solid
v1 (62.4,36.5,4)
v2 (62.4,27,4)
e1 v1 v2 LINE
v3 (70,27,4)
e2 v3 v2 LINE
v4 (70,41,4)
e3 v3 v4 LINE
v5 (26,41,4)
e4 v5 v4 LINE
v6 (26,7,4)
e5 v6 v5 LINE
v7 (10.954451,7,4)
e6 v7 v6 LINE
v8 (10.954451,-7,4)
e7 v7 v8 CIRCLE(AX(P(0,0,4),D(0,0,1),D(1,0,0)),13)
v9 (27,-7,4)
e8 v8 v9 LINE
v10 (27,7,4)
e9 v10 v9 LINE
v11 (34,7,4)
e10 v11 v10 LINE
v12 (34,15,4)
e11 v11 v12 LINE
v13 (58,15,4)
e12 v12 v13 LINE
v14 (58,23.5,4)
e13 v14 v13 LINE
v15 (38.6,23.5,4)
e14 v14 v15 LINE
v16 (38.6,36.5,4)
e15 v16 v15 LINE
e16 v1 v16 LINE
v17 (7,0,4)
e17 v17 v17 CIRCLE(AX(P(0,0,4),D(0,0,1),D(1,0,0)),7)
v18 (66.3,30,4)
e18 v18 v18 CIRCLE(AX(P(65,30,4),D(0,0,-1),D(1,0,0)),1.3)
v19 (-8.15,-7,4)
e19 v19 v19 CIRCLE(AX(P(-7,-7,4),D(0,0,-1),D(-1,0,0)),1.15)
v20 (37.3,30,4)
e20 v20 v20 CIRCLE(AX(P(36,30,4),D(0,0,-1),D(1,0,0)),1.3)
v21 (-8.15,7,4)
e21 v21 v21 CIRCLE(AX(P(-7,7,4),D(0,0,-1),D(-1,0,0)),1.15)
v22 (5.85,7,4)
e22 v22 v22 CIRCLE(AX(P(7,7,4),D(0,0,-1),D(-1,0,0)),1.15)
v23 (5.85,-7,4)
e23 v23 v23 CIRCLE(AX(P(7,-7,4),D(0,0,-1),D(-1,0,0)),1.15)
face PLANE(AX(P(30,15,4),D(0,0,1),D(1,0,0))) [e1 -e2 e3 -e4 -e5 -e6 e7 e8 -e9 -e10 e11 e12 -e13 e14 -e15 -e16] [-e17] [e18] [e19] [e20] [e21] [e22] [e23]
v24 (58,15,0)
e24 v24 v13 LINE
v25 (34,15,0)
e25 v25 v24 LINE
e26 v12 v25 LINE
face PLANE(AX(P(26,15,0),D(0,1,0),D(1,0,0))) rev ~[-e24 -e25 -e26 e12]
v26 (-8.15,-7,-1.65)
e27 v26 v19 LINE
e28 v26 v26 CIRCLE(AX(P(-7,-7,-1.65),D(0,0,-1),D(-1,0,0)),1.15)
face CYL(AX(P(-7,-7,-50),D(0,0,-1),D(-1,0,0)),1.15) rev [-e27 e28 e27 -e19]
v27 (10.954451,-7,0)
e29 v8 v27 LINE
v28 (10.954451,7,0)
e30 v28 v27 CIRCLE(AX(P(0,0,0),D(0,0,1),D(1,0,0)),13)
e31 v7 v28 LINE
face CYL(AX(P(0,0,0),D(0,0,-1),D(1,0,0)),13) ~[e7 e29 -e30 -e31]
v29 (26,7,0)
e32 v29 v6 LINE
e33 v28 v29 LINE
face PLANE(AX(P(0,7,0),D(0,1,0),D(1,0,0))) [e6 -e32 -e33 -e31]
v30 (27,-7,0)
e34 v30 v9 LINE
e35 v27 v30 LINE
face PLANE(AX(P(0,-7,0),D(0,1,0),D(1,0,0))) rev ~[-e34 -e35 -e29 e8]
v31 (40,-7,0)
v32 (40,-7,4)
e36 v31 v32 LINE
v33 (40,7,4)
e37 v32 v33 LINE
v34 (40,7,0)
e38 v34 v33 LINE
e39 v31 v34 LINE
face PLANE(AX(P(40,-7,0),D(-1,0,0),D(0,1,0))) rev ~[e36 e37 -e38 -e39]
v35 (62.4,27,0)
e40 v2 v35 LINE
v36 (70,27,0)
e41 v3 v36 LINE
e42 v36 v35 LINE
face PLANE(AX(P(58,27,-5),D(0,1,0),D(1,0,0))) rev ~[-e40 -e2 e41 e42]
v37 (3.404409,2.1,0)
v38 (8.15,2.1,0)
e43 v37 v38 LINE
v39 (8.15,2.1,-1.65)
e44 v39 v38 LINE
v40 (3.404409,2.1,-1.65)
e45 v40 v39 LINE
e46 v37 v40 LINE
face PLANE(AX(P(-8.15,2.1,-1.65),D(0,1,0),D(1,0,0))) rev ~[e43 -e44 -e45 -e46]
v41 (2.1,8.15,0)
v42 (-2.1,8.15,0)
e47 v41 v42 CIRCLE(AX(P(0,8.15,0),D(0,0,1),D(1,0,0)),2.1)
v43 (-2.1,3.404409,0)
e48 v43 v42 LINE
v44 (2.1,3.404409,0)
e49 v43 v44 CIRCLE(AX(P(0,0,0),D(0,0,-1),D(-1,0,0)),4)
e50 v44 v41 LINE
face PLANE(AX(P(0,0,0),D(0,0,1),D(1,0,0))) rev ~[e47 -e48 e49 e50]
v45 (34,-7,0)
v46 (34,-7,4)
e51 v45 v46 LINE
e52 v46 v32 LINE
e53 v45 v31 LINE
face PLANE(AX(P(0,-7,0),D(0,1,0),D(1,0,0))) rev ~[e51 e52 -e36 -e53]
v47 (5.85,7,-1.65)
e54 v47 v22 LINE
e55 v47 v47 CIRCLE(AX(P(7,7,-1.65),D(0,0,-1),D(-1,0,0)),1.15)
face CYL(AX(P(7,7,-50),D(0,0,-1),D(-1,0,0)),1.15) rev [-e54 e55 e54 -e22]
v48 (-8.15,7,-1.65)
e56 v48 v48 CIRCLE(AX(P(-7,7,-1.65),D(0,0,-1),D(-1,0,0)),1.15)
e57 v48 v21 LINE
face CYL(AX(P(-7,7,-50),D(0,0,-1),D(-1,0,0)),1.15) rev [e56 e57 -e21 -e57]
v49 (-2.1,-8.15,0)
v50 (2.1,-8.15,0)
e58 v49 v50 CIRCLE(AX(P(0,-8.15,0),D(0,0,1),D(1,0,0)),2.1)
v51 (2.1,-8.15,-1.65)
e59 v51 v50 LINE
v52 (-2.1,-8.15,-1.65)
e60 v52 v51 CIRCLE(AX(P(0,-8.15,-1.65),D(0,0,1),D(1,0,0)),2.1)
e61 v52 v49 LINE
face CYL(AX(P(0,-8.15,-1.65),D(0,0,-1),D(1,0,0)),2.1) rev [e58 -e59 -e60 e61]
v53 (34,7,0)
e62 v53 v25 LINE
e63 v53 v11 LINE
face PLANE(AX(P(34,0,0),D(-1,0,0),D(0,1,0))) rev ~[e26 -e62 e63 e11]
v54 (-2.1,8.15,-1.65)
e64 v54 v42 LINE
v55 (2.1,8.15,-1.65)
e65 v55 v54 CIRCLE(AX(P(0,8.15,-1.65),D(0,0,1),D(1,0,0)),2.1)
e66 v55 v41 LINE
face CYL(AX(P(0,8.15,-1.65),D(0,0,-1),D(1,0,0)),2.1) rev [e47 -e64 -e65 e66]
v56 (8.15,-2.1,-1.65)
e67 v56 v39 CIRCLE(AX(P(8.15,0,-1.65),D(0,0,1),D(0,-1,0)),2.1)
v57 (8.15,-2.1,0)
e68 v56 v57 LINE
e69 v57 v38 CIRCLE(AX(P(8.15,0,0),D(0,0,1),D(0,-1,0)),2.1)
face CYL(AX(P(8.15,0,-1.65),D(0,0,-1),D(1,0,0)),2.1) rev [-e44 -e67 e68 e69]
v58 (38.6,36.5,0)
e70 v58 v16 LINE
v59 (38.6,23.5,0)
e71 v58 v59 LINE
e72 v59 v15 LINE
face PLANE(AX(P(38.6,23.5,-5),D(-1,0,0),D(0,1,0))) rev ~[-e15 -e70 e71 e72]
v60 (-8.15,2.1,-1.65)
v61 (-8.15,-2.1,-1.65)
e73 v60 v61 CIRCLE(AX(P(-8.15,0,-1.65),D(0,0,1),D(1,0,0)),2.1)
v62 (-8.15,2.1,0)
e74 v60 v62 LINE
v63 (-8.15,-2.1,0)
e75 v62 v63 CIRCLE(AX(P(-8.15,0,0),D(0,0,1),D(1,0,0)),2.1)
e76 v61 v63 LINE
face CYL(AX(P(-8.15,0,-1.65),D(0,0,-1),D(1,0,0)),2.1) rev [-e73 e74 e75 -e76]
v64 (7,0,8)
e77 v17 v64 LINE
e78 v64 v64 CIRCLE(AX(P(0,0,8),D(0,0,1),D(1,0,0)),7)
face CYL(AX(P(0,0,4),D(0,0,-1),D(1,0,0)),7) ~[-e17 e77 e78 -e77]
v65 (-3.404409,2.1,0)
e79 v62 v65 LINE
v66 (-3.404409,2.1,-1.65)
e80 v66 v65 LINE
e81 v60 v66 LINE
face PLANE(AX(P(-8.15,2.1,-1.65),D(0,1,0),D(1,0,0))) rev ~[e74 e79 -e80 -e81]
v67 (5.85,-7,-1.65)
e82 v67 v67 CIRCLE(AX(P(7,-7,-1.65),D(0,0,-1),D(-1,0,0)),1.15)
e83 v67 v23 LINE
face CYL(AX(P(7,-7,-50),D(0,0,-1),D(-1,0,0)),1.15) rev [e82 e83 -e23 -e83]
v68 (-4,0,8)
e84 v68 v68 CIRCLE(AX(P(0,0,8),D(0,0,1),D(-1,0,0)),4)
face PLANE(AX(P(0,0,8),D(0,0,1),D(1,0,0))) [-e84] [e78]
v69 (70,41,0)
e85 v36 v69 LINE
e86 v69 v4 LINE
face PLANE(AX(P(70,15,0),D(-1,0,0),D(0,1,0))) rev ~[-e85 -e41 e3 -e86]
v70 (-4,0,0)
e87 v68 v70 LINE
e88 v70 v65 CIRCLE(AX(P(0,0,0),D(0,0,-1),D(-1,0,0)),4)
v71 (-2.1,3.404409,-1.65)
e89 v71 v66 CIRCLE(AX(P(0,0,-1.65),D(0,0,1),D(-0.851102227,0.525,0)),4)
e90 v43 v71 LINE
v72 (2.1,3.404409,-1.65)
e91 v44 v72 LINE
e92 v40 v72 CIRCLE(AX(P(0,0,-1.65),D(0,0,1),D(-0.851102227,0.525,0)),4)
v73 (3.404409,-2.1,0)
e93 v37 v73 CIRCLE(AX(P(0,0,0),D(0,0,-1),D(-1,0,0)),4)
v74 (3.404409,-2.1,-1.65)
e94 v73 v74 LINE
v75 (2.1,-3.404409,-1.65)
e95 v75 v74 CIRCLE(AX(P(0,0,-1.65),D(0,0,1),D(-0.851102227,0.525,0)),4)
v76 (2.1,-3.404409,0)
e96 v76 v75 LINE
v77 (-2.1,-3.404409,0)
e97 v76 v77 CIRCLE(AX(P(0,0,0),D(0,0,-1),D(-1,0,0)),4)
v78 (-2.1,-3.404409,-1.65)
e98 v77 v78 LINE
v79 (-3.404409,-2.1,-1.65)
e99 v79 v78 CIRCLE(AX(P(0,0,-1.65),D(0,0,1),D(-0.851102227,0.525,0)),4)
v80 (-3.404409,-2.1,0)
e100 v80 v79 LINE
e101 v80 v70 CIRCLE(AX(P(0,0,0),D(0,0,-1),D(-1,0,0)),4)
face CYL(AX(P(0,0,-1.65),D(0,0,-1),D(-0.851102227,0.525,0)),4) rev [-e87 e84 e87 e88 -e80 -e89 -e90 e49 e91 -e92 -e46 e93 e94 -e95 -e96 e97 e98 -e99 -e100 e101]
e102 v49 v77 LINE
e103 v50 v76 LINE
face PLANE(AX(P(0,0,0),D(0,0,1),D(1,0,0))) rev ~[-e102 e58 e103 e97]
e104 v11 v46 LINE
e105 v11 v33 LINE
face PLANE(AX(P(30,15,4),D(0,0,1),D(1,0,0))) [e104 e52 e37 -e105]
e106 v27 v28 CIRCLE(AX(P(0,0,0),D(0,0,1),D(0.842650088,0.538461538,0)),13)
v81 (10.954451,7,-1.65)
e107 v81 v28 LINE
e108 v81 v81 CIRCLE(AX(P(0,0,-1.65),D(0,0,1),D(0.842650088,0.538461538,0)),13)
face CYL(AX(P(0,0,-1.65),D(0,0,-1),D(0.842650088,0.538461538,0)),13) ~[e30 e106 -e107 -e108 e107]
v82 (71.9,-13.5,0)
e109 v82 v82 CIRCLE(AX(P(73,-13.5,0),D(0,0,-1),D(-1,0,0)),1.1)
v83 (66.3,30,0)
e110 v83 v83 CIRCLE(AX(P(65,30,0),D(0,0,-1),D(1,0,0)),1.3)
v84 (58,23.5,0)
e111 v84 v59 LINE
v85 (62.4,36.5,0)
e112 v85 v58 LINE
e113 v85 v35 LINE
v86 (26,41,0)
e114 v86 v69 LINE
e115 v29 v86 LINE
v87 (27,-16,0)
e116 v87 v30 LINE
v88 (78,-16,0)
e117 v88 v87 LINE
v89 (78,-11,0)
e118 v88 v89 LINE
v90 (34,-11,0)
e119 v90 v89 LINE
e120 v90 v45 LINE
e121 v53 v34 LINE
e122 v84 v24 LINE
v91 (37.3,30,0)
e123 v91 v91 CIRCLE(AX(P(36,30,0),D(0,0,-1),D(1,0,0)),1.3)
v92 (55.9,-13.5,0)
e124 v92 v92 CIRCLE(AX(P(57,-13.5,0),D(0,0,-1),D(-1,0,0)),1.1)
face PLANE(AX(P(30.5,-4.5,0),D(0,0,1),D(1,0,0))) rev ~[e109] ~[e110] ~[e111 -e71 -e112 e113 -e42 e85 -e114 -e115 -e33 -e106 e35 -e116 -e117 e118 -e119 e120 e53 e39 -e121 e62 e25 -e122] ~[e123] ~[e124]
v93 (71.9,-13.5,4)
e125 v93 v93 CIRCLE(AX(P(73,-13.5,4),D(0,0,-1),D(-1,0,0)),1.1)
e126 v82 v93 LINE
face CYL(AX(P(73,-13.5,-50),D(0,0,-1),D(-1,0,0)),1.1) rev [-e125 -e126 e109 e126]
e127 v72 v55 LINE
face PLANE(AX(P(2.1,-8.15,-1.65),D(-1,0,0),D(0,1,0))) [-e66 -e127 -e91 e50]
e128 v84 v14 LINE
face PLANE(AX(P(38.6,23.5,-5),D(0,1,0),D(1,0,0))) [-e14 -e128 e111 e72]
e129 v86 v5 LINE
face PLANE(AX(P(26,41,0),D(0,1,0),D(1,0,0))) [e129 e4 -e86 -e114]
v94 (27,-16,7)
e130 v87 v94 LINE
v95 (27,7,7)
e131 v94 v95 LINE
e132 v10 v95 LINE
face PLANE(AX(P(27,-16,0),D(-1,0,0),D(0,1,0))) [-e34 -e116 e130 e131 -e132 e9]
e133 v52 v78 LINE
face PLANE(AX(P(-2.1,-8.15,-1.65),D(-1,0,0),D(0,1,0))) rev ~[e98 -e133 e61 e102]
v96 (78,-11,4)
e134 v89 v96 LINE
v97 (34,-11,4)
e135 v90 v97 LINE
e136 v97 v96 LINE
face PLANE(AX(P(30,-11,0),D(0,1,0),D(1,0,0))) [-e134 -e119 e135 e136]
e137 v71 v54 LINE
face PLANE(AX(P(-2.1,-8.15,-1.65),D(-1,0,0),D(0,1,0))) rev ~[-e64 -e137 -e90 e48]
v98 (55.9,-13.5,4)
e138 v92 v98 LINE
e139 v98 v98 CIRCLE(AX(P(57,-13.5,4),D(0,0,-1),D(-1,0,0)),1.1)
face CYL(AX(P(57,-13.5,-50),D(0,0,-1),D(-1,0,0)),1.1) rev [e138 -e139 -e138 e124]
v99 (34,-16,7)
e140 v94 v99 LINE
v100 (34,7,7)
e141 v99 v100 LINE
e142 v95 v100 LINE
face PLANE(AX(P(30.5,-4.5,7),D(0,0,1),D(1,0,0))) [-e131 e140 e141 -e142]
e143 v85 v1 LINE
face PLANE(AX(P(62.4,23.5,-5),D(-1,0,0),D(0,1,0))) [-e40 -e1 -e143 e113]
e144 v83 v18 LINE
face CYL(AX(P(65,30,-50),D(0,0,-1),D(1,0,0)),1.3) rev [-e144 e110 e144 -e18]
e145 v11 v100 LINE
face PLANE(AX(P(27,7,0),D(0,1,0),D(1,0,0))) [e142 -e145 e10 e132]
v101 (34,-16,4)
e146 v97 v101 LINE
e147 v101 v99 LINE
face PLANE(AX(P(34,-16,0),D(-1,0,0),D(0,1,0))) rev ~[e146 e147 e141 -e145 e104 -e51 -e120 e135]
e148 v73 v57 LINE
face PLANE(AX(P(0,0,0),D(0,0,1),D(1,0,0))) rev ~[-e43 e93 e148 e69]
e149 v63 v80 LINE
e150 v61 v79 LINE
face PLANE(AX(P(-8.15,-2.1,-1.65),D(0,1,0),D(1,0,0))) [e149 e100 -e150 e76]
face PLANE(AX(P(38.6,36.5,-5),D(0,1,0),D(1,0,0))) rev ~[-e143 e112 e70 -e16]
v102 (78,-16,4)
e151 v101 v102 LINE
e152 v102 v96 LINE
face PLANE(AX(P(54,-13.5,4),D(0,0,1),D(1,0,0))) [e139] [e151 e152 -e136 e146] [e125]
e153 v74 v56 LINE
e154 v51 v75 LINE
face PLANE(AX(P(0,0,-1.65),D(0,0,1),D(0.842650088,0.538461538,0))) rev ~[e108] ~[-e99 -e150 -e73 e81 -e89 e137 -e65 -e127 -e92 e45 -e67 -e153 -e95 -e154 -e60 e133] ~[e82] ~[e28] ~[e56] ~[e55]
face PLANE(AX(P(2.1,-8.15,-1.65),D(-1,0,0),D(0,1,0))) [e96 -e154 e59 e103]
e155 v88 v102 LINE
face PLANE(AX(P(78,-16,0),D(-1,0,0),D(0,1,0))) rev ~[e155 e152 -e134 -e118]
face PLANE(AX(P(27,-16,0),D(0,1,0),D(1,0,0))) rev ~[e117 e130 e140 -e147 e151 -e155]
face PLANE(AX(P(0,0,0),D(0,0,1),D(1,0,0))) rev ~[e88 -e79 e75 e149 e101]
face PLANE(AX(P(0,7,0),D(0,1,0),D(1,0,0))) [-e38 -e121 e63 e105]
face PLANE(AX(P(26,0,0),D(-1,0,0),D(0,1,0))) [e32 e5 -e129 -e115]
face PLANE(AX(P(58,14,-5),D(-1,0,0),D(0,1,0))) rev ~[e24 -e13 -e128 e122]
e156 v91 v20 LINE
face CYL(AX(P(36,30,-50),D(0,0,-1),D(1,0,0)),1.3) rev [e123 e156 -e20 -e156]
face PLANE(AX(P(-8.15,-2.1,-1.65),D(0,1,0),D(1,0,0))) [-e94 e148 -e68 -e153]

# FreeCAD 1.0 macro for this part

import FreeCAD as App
import Part
import Sketcher
from FreeCAD import Vector


def add_polygon(sketch, points):
    """Adds a closed chain of lines whose ends are joined by coincident constraints."""
    first, n = sketch.GeometryCount, len(points)
    for a, b in zip(points, points[1:] + points[:1]):
        sketch.addGeometry(Part.LineSegment(App.Vector(*a, 0), App.Vector(*b, 0)), False)
    for i in range(n):
        sketch.addConstraint(Sketcher.Constraint("Coincident", first + i, 2, first + (i + 1) % n, 1))

doc = App.newDocument("Part")
params = doc.addObject("Spreadsheet::Sheet", "Params")
for row, (alias, value) in enumerate([
    ("sketch1_diameter", "26 mm"),
    ("pad1_length", "4 mm"),
    ("sketch2_width", "40 mm"),
    ("sketch2_height", "14 mm"),
    ("pad2_length", "4 mm"),
    ("sketch3_width", "8 mm"),
    ("sketch3_height", "30 mm"),
    ("pad3_length", "4 mm"),
    ("sketch4_width", "44 mm"),
    ("sketch4_height", "26 mm"),
    ("pad4_length", "4 mm"),
    ("sketch5_height", "13 mm"),
    ("sketch5_width", "23.8 mm"),
    ("sketch6_width", "13 mm"),
    ("sketch7_diameter", "2.6 mm"),
    ("sketch8_width", "48 mm"),
    ("sketch8_height", "5 mm"),
    ("pad5_length", "4 mm"),
    ("sketch9_width", "7 mm"),
    ("sketch9_height", "23 mm"),
    ("pad6_length", "7 mm"),
    ("sketch10_diameter", "8 mm"),
    ("sketch11_diameter", "14 mm"),
    ("sketch11_diameter2", "8 mm"),
    ("pad7_length", "4 mm"),
    ("sketch12_diameter", "26 mm"),
    ("pad8_length", "1.65 mm"),
    ("sketch13_diameter", "7.1 mm"),
    ("pocket5_length", "1.65 mm"),
    ("sketch14_width", "16.3 mm"),
    ("sketch14_height", "4.2 mm"),
    ("pocket6_length", "1.65 mm"),
    ("sketch15_width", "4.2 mm"),
    ("sketch15_height", "16.3 mm"),
    ("pocket7_length", "1.65 mm"),
    ("sketch16_diameter", "4.2 mm"),
    ("pocket8_length", "1.65 mm"),
    ("sketch17_diameter", "2.3 mm"),
    ("sketch18_diameter", "8 mm"),
    ("pocket10_length", "1.65 mm"),
    ("sketch19_diameter", "2.2 mm"),
], start=1):
    params.set(f"A{row}", alias)
    params.set(f"B{row}", "=" + value)
    params.setAlias(f"B{row}", alias)

body = doc.addObject("PartDesign::Body", "Body")

sketch1 = doc.addObject("Sketcher::SketchObject", "Sketch")
body.addObject(sketch1)
sketch1.AttachmentSupport = (doc.XY_Plane, [""])
sketch1.MapMode = "FlatFace"
sketch1.addGeometry(Part.Circle(Vector(0, 0, 0), Vector(0, 0, 1), 13), False)
sketch1.addConstraint([
    Sketcher.Constraint("Coincident", 0, 3, -1, 1),
    Sketcher.Constraint("Diameter", 0, 26.0),
])
sketch1.setExpression("Constraints[1]", "Params.sketch1_diameter")
pad1 = doc.addObject("PartDesign::Pad", "Pad")
body.addObject(pad1)
pad1.Profile = sketch1
pad1.setExpression("Length", "Params.pad1_length")

sketch2 = doc.addObject("Sketcher::SketchObject", "Sketch001")
body.addObject(sketch2)
sketch2.AttachmentSupport = (doc.XY_Plane, [""])
sketch2.MapMode = "FlatFace"
add_polygon(sketch2, [(0, 7), (0, -7), (40, -7), (40, 7)])
sketch2.addConstraint([
    Sketcher.Constraint("Vertical", 0),
    Sketcher.Constraint("Horizontal", 1),
    Sketcher.Constraint("Vertical", 2),
    Sketcher.Constraint("Horizontal", 3),
    Sketcher.Constraint("Symmetric", 0, 2, 3, 2, -1, 1),
    Sketcher.Constraint("DistanceX", 1, 1, 1, 2, 40.0),
    Sketcher.Constraint("DistanceY", 0, 2, 0, 1, 14.0),
])
sketch2.setExpression("Constraints[9]", "Params.sketch2_width")
sketch2.setExpression("Constraints[10]", "Params.sketch2_height")
pad2 = doc.addObject("PartDesign::Pad", "Pad001")
body.addObject(pad2)
pad2.Profile = sketch2
pad2.setExpression("Length", "Params.pad2_length")

sketch3 = doc.addObject("Sketcher::SketchObject", "Sketch002")
body.addObject(sketch3)
sketch3.AttachmentSupport = (doc.XY_Plane, [""])
sketch3.MapMode = "FlatFace"
add_polygon(sketch3, [(26, 30), (26, 0), (34, 0), (34, 30)])
sketch3.addConstraint([
    Sketcher.Constraint("Vertical", 0),
    Sketcher.Constraint("Horizontal", 1),
    Sketcher.Constraint("Vertical", 2),
    Sketcher.Constraint("Horizontal", 3),
    Sketcher.Constraint("PointOnObject", 0, 2, -1),
    Sketcher.Constraint("DistanceX", 1, 1, 1, 2, 8.0),
    Sketcher.Constraint("DistanceY", 0, 2, 0, 1, 30.0),
    Sketcher.Constraint("DistanceX", -1, 1, 0, 2, 26.0),
])
sketch3.setExpression("Constraints[9]", "Params.sketch3_width")
sketch3.setExpression("Constraints[10]", "Params.sketch3_height")
pad3 = doc.addObject("PartDesign::Pad", "Pad002")
body.addObject(pad3)
pad3.Profile = sketch3
pad3.setExpression("Length", "Params.pad3_length")

sketch4 = doc.addObject("Sketcher::SketchObject", "Sketch003")
body.addObject(sketch4)
sketch4.AttachmentSupport = (doc.XY_Plane, [""])
sketch4.MapMode = "FlatFace"
add_polygon(sketch4, [(26, 41), (26, 15), (70, 15), (70, 41)])
sketch4.addConstraint([
    Sketcher.Constraint("Vertical", 0),
    Sketcher.Constraint("Horizontal", 1),
    Sketcher.Constraint("Vertical", 2),
    Sketcher.Constraint("Horizontal", 3),
    Sketcher.Constraint("DistanceX", 1, 1, 1, 2, 44.0),
    Sketcher.Constraint("DistanceY", 0, 2, 0, 1, 26.0),
    Sketcher.Constraint("DistanceX", -1, 1, 0, 2, 26.0),
    Sketcher.Constraint("DistanceY", -1, 1, 0, 2, 15.0),
])
sketch4.setExpression("Constraints[8]", "Params.sketch4_width")
sketch4.setExpression("Constraints[9]", "Params.sketch4_height")
pad4 = doc.addObject("PartDesign::Pad", "Pad003")
body.addObject(pad4)
pad4.Profile = sketch4
pad4.setExpression("Length", "Params.pad4_length")

sketch5 = doc.addObject("Sketcher::SketchObject", "Sketch004")
body.addObject(sketch5)
sketch5.AttachmentSupport = (doc.XY_Plane, [""])
sketch5.MapMode = "FlatFace"
sketch5.AttachmentOffset = App.Placement(Vector(0, 0, -5), App.Rotation())
add_polygon(sketch5, [(38.6, 36.5), (38.6, 23.5), (62.4, 23.5), (62.4, 36.5)])
sketch5.addConstraint([
    Sketcher.Constraint("Vertical", 0),
    Sketcher.Constraint("Horizontal", 1),
    Sketcher.Constraint("Vertical", 2),
    Sketcher.Constraint("Horizontal", 3),
    Sketcher.Constraint("DistanceY", 0, 2, 0, 1, 13.0),
    Sketcher.Constraint("DistanceX", 1, 1, 1, 2, 23.8),
    Sketcher.Constraint("DistanceX", -1, 1, 0, 2, 38.6),
    Sketcher.Constraint("DistanceY", -1, 1, 0, 2, 23.5),
])
sketch5.setExpression("Constraints[8]", "Params.sketch5_height")
sketch5.setExpression("Constraints[9]", "Params.sketch5_width")
pocket1 = doc.addObject("PartDesign::Pocket", "Pocket")
body.addObject(pocket1)
pocket1.Profile = sketch5
pocket1.Type = "ThroughAll"
pocket1.Reversed = True

sketch6 = doc.addObject("Sketcher::SketchObject", "Sketch005")
body.addObject(sketch6)
sketch6.AttachmentSupport = (doc.XY_Plane, [""])
sketch6.MapMode = "FlatFace"
sketch6.AttachmentOffset = App.Placement(Vector(0, 0, -5), App.Rotation())
add_polygon(sketch6, [(58, 27), (58, 14), (71, 14), (71, 27)])
sketch6.addConstraint([
    Sketcher.Constraint("Vertical", 0),
    Sketcher.Constraint("Horizontal", 1),
    Sketcher.Constraint("Vertical", 2),
    Sketcher.Constraint("Horizontal", 3),
    Sketcher.Constraint("Equal", 3, 0),
    Sketcher.Constraint("DistanceX", 1, 1, 1, 2, 13.0),
    Sketcher.Constraint("DistanceX", -1, 1, 0, 2, 58.0),
    Sketcher.Constraint("DistanceY", -1, 1, 0, 2, 14.0),
])
sketch6.setExpression("Constraints[9]", "Params.sketch6_width")
pocket2 = doc.addObject("PartDesign::Pocket", "Pocket001")
body.addObject(pocket2)
pocket2.Profile = sketch6
pocket2.Type = "ThroughAll"
pocket2.Reversed = True

sketch7 = doc.addObject("Sketcher::SketchObject", "Sketch006")
body.addObject(sketch7)
sketch7.AttachmentSupport = (doc.XY_Plane, [""])
sketch7.MapMode = "FlatFace"
sketch7.AttachmentOffset = App.Placement(Vector(0, 0, -50), App.Rotation())
sketch7.addGeometry([
    Part.Circle(Vector(36, 30, 0), Vector(0, 0, 1), 1.3),
    Part.Circle(Vector(65, 30, 0), Vector(0, 0, 1), 1.3),
], False)
sketch7.addConstraint([
    Sketcher.Constraint("Equal", 0, 1),
    Sketcher.Constraint("Horizontal", 0, 3, 1, 3),
    Sketcher.Constraint("Diameter", 0, 2.6),
    Sketcher.Constraint("DistanceX", -1, 1, 0, 3, 36.0),
    Sketcher.Constraint("DistanceY", -1, 1, 0, 3, 30.0),
    Sketcher.Constraint("DistanceX", -1, 1, 1, 3, 65.0),
])
sketch7.setExpression("Constraints[2]", "Params.sketch7_diameter")
pocket3 = doc.addObject("PartDesign::Pocket", "Pocket002")
body.addObject(pocket3)
pocket3.Profile = sketch7
pocket3.Type = "ThroughAll"
pocket3.Reversed = True
body2 = doc.addObject("PartDesign::Body", "Body001")

sketch8 = doc.addObject("Sketcher::SketchObject", "Sketch007")
body2.addObject(sketch8)
sketch8.AttachmentSupport = (doc.getObject("XY_Plane001"), [""])
sketch8.MapMode = "FlatFace"
add_polygon(sketch8, [(30, -11), (30, -16), (78, -16), (78, -11)])
sketch8.addConstraint([
    Sketcher.Constraint("Vertical", 0),
    Sketcher.Constraint("Horizontal", 1),
    Sketcher.Constraint("Vertical", 2),
    Sketcher.Constraint("Horizontal", 3),
    Sketcher.Constraint("DistanceX", 1, 1, 1, 2, 48.0),
    Sketcher.Constraint("DistanceY", 0, 2, 0, 1, 5.0),
    Sketcher.Constraint("DistanceX", -1, 1, 0, 2, 30.0),
    Sketcher.Constraint("DistanceY", 0, 2, -1, 1, 16.0),
])
sketch8.setExpression("Constraints[8]", "Params.sketch8_width")
sketch8.setExpression("Constraints[9]", "Params.sketch8_height")
pad5 = doc.addObject("PartDesign::Pad", "Pad004")
body2.addObject(pad5)
pad5.Profile = sketch8
pad5.setExpression("Length", "Params.pad5_length")
body.AllowCompound = True
doc.recompute()

boolean = doc.addObject("PartDesign::Boolean", "Boolean")
body.addObject(boolean)
boolean.Type = "Fuse"
boolean.addObjects([body2])

sketch9 = doc.addObject("Sketcher::SketchObject", "Sketch008")
body.addObject(sketch9)
sketch9.AttachmentSupport = (doc.XY_Plane, [""])
sketch9.MapMode = "FlatFace"
add_polygon(sketch9, [(27, 7), (27, -16), (34, -16), (34, 7)])
sketch9.addConstraint([
    Sketcher.Constraint("Vertical", 0),
    Sketcher.Constraint("Horizontal", 1),
    Sketcher.Constraint("Vertical", 2),
    Sketcher.Constraint("Horizontal", 3),
    Sketcher.Constraint("DistanceX", 1, 1, 1, 2, 7.0),
    Sketcher.Constraint("DistanceY", 0, 2, 0, 1, 23.0),
    Sketcher.Constraint("DistanceX", -1, 1, 0, 2, 27.0),
    Sketcher.Constraint("DistanceY", 0, 2, -1, 1, 16.0),
])
sketch9.setExpression("Constraints[8]", "Params.sketch9_width")
sketch9.setExpression("Constraints[9]", "Params.sketch9_height")
pad6 = doc.addObject("PartDesign::Pad", "Pad005")
body.addObject(pad6)
pad6.Profile = sketch9
pad6.setExpression("Length", "Params.pad6_length")

sketch10 = doc.addObject("Sketcher::SketchObject", "Sketch009")
body.addObject(sketch10)
sketch10.AttachmentSupport = (doc.XY_Plane, [""])
sketch10.MapMode = "FlatFace"
sketch10.AttachmentOffset = App.Placement(Vector(0, 0, -50), App.Rotation())
sketch10.addGeometry(Part.Circle(Vector(0, 0, 0), Vector(0, 0, 1), 4), False)
sketch10.addConstraint([
    Sketcher.Constraint("Coincident", 0, 3, -1, 1),
    Sketcher.Constraint("Diameter", 0, 8.0),
])
sketch10.setExpression("Constraints[1]", "Params.sketch10_diameter")
pocket4 = doc.addObject("PartDesign::Pocket", "Pocket003")
body.addObject(pocket4)
pocket4.Profile = sketch10
pocket4.Type = "ThroughAll"
pocket4.Reversed = True

sketch11 = doc.addObject("Sketcher::SketchObject", "Sketch010")
body.addObject(sketch11)
sketch11.AttachmentSupport = (doc.XY_Plane, [""])
sketch11.MapMode = "FlatFace"
sketch11.AttachmentOffset = App.Placement(Vector(0, 0, 4), App.Rotation())
sketch11.addGeometry([
    Part.Circle(Vector(0, 0, 0), Vector(0, 0, 1), 7),
    Part.Circle(Vector(0, 0, 0), Vector(0, 0, 1), 4),
], False)
sketch11.addConstraint([
    Sketcher.Constraint("Coincident", 0, 3, -1, 1),
    Sketcher.Constraint("Coincident", 1, 3, -1, 1),
    Sketcher.Constraint("Diameter", 0, 14.0),
    Sketcher.Constraint("Diameter", 1, 8.0),
])
sketch11.setExpression("Constraints[2]", "Params.sketch11_diameter")
sketch11.setExpression("Constraints[3]", "Params.sketch11_diameter2")
pad7 = doc.addObject("PartDesign::Pad", "Pad006")
body.addObject(pad7)
pad7.Profile = sketch11
pad7.setExpression("Length", "Params.pad7_length")

sketch12 = doc.addObject("Sketcher::SketchObject", "Sketch011")
body.addObject(sketch12)
sketch12.AttachmentSupport = (doc.XY_Plane, [""])
sketch12.MapMode = "FlatFace"
sketch12.AttachmentOffset = App.Placement(Vector(0, 0, -1.65), App.Rotation())
sketch12.addGeometry(Part.Circle(Vector(0, 0, 0), Vector(0, 0, 1), 13), False)
sketch12.addConstraint([
    Sketcher.Constraint("Coincident", 0, 3, -1, 1),
    Sketcher.Constraint("Diameter", 0, 26.0),
])
sketch12.setExpression("Constraints[1]", "Params.sketch12_diameter")
pad8 = doc.addObject("PartDesign::Pad", "Pad007")
body.addObject(pad8)
pad8.Profile = sketch12
pad8.setExpression("Length", "Params.pad8_length")

sketch13 = doc.addObject("Sketcher::SketchObject", "Sketch012")
body.addObject(sketch13)
sketch13.AttachmentSupport = (doc.XY_Plane, [""])
sketch13.MapMode = "FlatFace"
sketch13.AttachmentOffset = App.Placement(Vector(0, 0, -1.65), App.Rotation())
sketch13.addGeometry(Part.Circle(Vector(0, 0, 0), Vector(0, 0, 1), 3.55), False)
sketch13.addConstraint([
    Sketcher.Constraint("Coincident", 0, 3, -1, 1),
    Sketcher.Constraint("Diameter", 0, 7.1),
])
sketch13.setExpression("Constraints[1]", "Params.sketch13_diameter")
pocket5 = doc.addObject("PartDesign::Pocket", "Pocket004")
body.addObject(pocket5)
pocket5.Profile = sketch13
pocket5.setExpression("Length", "Params.pocket5_length")
pocket5.Reversed = True

sketch14 = doc.addObject("Sketcher::SketchObject", "Sketch013")
body.addObject(sketch14)
sketch14.AttachmentSupport = (doc.XY_Plane, [""])
sketch14.MapMode = "FlatFace"
sketch14.AttachmentOffset = App.Placement(Vector(0, 0, -1.65), App.Rotation())
add_polygon(sketch14, [(-8.15, 2.1), (-8.15, -2.1), (8.15, -2.1), (8.15, 2.1)])
sketch14.addConstraint([
    Sketcher.Constraint("Vertical", 0),
    Sketcher.Constraint("Horizontal", 1),
    Sketcher.Constraint("Vertical", 2),
    Sketcher.Constraint("Horizontal", 3),
    Sketcher.Constraint("Symmetric", 0, 2, 2, 2, -1, 1),
    Sketcher.Constraint("DistanceX", 1, 1, 1, 2, 16.3),
    Sketcher.Constraint("DistanceY", 0, 2, 0, 1, 4.2),
])
sketch14.setExpression("Constraints[9]", "Params.sketch14_width")
sketch14.setExpression("Constraints[10]", "Params.sketch14_height")
pocket6 = doc.addObject("PartDesign::Pocket", "Pocket005")
body.addObject(pocket6)
pocket6.Profile = sketch14
pocket6.setExpression("Length", "Params.pocket6_length")
pocket6.Reversed = True

sketch15 = doc.addObject("Sketcher::SketchObject", "Sketch014")
body.addObject(sketch15)
sketch15.AttachmentSupport = (doc.XY_Plane, [""])
sketch15.MapMode = "FlatFace"
sketch15.AttachmentOffset = App.Placement(Vector(0, 0, -1.65), App.Rotation())
add_polygon(sketch15, [(-2.1, 8.15), (-2.1, -8.15), (2.1, -8.15), (2.1, 8.15)])
sketch15.addConstraint([
    Sketcher.Constraint("Vertical", 0),
    Sketcher.Constraint("Horizontal", 1),
    Sketcher.Constraint("Vertical", 2),
    Sketcher.Constraint("Horizontal", 3),
    Sketcher.Constraint("Symmetric", 0, 2, 2, 2, -1, 1),
    Sketcher.Constraint("DistanceX", 1, 1, 1, 2, 4.2),
    Sketcher.Constraint("DistanceY", 0, 2, 0, 1, 16.3),
])
sketch15.setExpression("Constraints[9]", "Params.sketch15_width")
sketch15.setExpression("Constraints[10]", "Params.sketch15_height")
pocket7 = doc.addObject("PartDesign::Pocket", "Pocket006")
body.addObject(pocket7)
pocket7.Profile = sketch15
pocket7.setExpression("Length", "Params.pocket7_length")
pocket7.Reversed = True

sketch16 = doc.addObject("Sketcher::SketchObject", "Sketch015")
body.addObject(sketch16)
sketch16.AttachmentSupport = (doc.XY_Plane, [""])
sketch16.MapMode = "FlatFace"
sketch16.AttachmentOffset = App.Placement(Vector(0, 0, -1.65), App.Rotation())
sketch16.addGeometry([
    Part.Circle(Vector(8.15, 0, 0), Vector(0, 0, 1), 2.1),
    Part.Circle(Vector(-8.15, 0, 0), Vector(0, 0, 1), 2.1),
    Part.Circle(Vector(0, 8.15, 0), Vector(0, 0, 1), 2.1),
    Part.Circle(Vector(0, -8.15, 0), Vector(0, 0, 1), 2.1),
], False)
sketch16.addConstraint([
    Sketcher.Constraint("Equal", 0, 1),
    Sketcher.Constraint("Equal", 1, 2),
    Sketcher.Constraint("Equal", 2, 3),
    Sketcher.Constraint("Symmetric", 0, 3, 1, 3, -1, 1),
    Sketcher.Constraint("Symmetric", 2, 3, 3, 3, -1, 1),
    Sketcher.Constraint("PointOnObject", 0, 3, -1),
    Sketcher.Constraint("PointOnObject", 2, 3, -2),
    Sketcher.Constraint("Diameter", 0, 4.2),
    Sketcher.Constraint("DistanceX", 1, 3, 0, 3, 16.3),
    Sketcher.Constraint("DistanceY", 3, 3, 2, 3, 16.3),
])
sketch16.setExpression("Constraints[7]", "Params.sketch16_diameter")
pocket8 = doc.addObject("PartDesign::Pocket", "Pocket007")
body.addObject(pocket8)
pocket8.Profile = sketch16
pocket8.setExpression("Length", "Params.pocket8_length")
pocket8.Reversed = True

sketch17 = doc.addObject("Sketcher::SketchObject", "Sketch016")
body.addObject(sketch17)
sketch17.AttachmentSupport = (doc.XY_Plane, [""])
sketch17.MapMode = "FlatFace"
sketch17.AttachmentOffset = App.Placement(Vector(0, 0, -50), App.Rotation())
sketch17.addGeometry([
    Part.Circle(Vector(7, 7, 0), Vector(0, 0, 1), 1.15),
    Part.Circle(Vector(-7, 7, 0), Vector(0, 0, 1), 1.15),
    Part.Circle(Vector(-7, -7, 0), Vector(0, 0, 1), 1.15),
    Part.Circle(Vector(7, -7, 0), Vector(0, 0, 1), 1.15),
], False)
sketch17.addConstraint([
    Sketcher.Constraint("Equal", 0, 1),
    Sketcher.Constraint("Equal", 1, 2),
    Sketcher.Constraint("Equal", 2, 3),
    Sketcher.Constraint("Symmetric", 0, 3, 2, 3, -1, 1),
    Sketcher.Constraint("Symmetric", 1, 3, 3, 3, -1, 1),
    Sketcher.Constraint("Symmetric", 0, 3, 1, 3, -2),
    Sketcher.Constraint("Diameter", 0, 2.3),
    Sketcher.Constraint("DistanceX", -1, 1, 0, 3, 7.0),
    Sketcher.Constraint("DistanceY", -1, 1, 0, 3, 7.0),
])
sketch17.setExpression("Constraints[6]", "Params.sketch17_diameter")
pocket9 = doc.addObject("PartDesign::Pocket", "Pocket008")
body.addObject(pocket9)
pocket9.Profile = sketch17
pocket9.Type = "ThroughAll"
pocket9.Reversed = True

sketch18 = doc.addObject("Sketcher::SketchObject", "Sketch017")
body.addObject(sketch18)
sketch18.AttachmentSupport = (doc.XY_Plane, [""])
sketch18.MapMode = "FlatFace"
sketch18.AttachmentOffset = App.Placement(Vector(0, 0, -1.65), App.Rotation())
sketch18.addGeometry(Part.Circle(Vector(0, 0, 0), Vector(0, 0, 1), 4), False)
sketch18.addConstraint([
    Sketcher.Constraint("Coincident", 0, 3, -1, 1),
    Sketcher.Constraint("Diameter", 0, 8.0),
])
sketch18.setExpression("Constraints[1]", "Params.sketch18_diameter")
pocket10 = doc.addObject("PartDesign::Pocket", "Pocket009")
body.addObject(pocket10)
pocket10.Profile = sketch18
pocket10.setExpression("Length", "Params.pocket10_length")
pocket10.Reversed = True

sketch19 = doc.addObject("Sketcher::SketchObject", "Sketch018")
body.addObject(sketch19)
sketch19.AttachmentSupport = (doc.XY_Plane, [""])
sketch19.MapMode = "FlatFace"
sketch19.AttachmentOffset = App.Placement(Vector(0, 0, -50), App.Rotation())
sketch19.addGeometry([
    Part.Circle(Vector(57, -13.5, 0), Vector(0, 0, 1), 1.1),
    Part.Circle(Vector(73, -13.5, 0), Vector(0, 0, 1), 1.1),
], False)
sketch19.addConstraint([
    Sketcher.Constraint("Equal", 0, 1),
    Sketcher.Constraint("Horizontal", 0, 3, 1, 3),
    Sketcher.Constraint("Diameter", 0, 2.2),
    Sketcher.Constraint("DistanceX", -1, 1, 0, 3, 57.0),
    Sketcher.Constraint("DistanceX", -1, 1, 1, 3, 73.0),
    Sketcher.Constraint("DistanceY", 0, 3, -1, 1, 13.5),
])
sketch19.setExpression("Constraints[2]", "Params.sketch19_diameter")
pocket11 = doc.addObject("PartDesign::Pocket", "Pocket010")
body.addObject(pocket11)
pocket11.Profile = sketch19
pocket11.Type = "ThroughAll"
pocket11.Reversed = True

doc.recompute()
